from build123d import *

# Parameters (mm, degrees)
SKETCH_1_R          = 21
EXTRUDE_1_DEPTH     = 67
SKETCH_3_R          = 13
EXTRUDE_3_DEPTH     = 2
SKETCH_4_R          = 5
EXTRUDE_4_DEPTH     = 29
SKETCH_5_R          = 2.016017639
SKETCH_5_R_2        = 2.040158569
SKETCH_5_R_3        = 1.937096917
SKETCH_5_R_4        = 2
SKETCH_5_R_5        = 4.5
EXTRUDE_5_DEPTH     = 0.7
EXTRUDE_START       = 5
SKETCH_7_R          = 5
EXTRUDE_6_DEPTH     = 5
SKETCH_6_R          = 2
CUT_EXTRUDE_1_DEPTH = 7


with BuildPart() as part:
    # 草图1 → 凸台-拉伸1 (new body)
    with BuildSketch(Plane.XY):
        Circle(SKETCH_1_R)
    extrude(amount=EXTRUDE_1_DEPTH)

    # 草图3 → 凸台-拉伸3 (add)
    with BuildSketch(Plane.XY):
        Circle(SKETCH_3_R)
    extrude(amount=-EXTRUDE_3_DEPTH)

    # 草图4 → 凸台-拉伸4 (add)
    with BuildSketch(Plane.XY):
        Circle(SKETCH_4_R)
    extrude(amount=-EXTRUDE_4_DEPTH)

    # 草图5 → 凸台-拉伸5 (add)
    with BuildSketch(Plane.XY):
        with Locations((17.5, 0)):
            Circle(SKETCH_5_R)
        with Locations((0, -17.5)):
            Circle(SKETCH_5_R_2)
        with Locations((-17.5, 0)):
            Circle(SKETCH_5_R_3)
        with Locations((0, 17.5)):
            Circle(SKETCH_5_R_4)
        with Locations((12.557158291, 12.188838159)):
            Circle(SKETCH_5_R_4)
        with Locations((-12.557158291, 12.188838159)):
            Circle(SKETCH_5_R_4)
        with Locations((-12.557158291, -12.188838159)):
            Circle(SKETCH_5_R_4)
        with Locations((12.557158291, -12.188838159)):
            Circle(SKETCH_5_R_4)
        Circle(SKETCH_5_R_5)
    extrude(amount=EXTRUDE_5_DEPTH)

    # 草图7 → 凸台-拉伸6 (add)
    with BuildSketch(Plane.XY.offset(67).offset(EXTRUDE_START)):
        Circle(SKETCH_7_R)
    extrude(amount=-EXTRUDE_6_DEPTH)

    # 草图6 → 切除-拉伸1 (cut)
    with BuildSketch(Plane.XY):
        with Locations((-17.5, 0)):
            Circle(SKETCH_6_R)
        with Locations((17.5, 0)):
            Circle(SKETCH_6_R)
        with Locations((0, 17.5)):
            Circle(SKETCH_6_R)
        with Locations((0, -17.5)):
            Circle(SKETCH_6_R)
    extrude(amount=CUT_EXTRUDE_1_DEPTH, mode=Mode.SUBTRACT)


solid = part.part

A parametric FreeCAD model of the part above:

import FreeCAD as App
import Part
import Sketcher
from FreeCAD import Vector

doc = App.newDocument("Part")
params = doc.addObject("Spreadsheet::Sheet", "Params")
for row, (alias, value) in enumerate([
    ("sketch1_diameter", "42 mm"),
    ("pad1_length", "67 mm"),
    ("sketch2_diameter", "26 mm"),
    ("pad2_length", "2 mm"),
    ("sketch3_diameter", "10 mm"),
    ("pad3_length", "29 mm"),
    ("sketch4_diameter", "4 mm"),
    ("sketch4_diameter2", "9 mm"),
    ("pad4_length", "0.7 mm"),
    ("sketch5_diameter", "10 mm"),
    ("pad5_length", "5 mm"),
    ("sketch6_diameter", "4 mm"),
    ("pocket1_length", "7 mm"),
], start=1):
    params.set(f"A{row}", alias)
    params.set(f"B{row}", "=" + value)
    params.setAlias(f"B{row}", alias)

body = doc.addObject("PartDesign::Body", "Body")

sketch1 = body.newObject("Sketcher::SketchObject", "Sketch")
sketch1.AttachmentSupport = (doc.getObject("XY_Plane"), [""])
sketch1.MapMode = "FlatFace"
sketch1.addGeometry(Part.Circle(Vector(0, 0, 0), Vector(0, 0, 1), 21), False)
sketch1.addConstraint([
    Sketcher.Constraint("Coincident", 0, 3, -1, 1),
    Sketcher.Constraint("Diameter", 0, 42.0),
])
sketch1.setExpression("Constraints[1]", "Params.sketch1_diameter")
pad1 = body.newObject("PartDesign::Pad", "Pad")
pad1.Profile = sketch1
pad1.setExpression("Length", "Params.pad1_length")

sketch2 = body.newObject("Sketcher::SketchObject", "Sketch001")
sketch2.AttachmentSupport = (doc.getObject("XY_Plane"), [""])
sketch2.MapMode = "FlatFace"
sketch2.addGeometry(Part.Circle(Vector(0, 0, 0), Vector(0, 0, 1), 13), False)
sketch2.addConstraint([
    Sketcher.Constraint("Coincident", 0, 3, -1, 1),
    Sketcher.Constraint("Diameter", 0, 26.0),
])
sketch2.setExpression("Constraints[1]", "Params.sketch2_diameter")
pad2 = body.newObject("PartDesign::Pad", "Pad001")
pad2.Profile = sketch2
pad2.setExpression("Length", "Params.pad2_length")
pad2.Reversed = True

sketch3 = body.newObject("Sketcher::SketchObject", "Sketch002")
sketch3.AttachmentSupport = (doc.getObject("XY_Plane"), [""])
sketch3.MapMode = "FlatFace"
sketch3.addGeometry(Part.Circle(Vector(0, 0, 0), Vector(0, 0, 1), 5), False)
sketch3.addConstraint([
    Sketcher.Constraint("Coincident", 0, 3, -1, 1),
    Sketcher.Constraint("Diameter", 0, 10.0),
])
sketch3.setExpression("Constraints[1]", "Params.sketch3_diameter")
pad3 = body.newObject("PartDesign::Pad", "Pad002")
pad3.Profile = sketch3
pad3.setExpression("Length", "Params.pad3_length")
pad3.Reversed = True

sketch4 = body.newObject("Sketcher::SketchObject", "Sketch003")
sketch4.AttachmentSupport = (doc.getObject("XY_Plane"), [""])
sketch4.MapMode = "FlatFace"
sketch4.addGeometry([
    Part.Circle(Vector(17.5, 0, 0), Vector(0, 0, 1), 2),
    Part.Circle(Vector(0, -17.5, 0), Vector(0, 0, 1), 2),
    Part.Circle(Vector(-17.5, 0, 0), Vector(0, 0, 1), 1.9),
    Part.Circle(Vector(0, 17.5, 0), Vector(0, 0, 1), 2),
    Part.Circle(Vector(12.6, 12.2, 0), Vector(0, 0, 1), 2),
    Part.Circle(Vector(-12.6, 12.2, 0), Vector(0, 0, 1), 2),
    Part.Circle(Vector(-12.6, -12.2, 0), Vector(0, 0, 1), 2),
    Part.Circle(Vector(12.6, -12.2, 0), Vector(0, 0, 1), 2),
    Part.Circle(Vector(0, 0, 0), Vector(0, 0, 1), 4.5),
], False)
sketch4.addConstraint([
    Sketcher.Constraint("Coincident", 8, 3, -1, 1),
    Sketcher.Constraint("Equal", 3, 4),
    Sketcher.Constraint("Equal", 4, 5),
    Sketcher.Constraint("Equal", 5, 6),
    Sketcher.Constraint("Equal", 6, 7),
    Sketcher.Constraint("Symmetric", 0, 3, 2, 3, -1, 1),
    Sketcher.Constraint("Symmetric", 1, 3, 3, 3, -1, 1),
    Sketcher.Constraint("Symmetric", 4, 3, 6, 3, -1, 1),
    Sketcher.Constraint("Symmetric", 5, 3, 7, 3, -1, 1),
    Sketcher.Constraint("Symmetric", 4, 3, 5, 3, -2),
    Sketcher.Constraint("PointOnObject", 0, 3, -1),
    Sketcher.Constraint("PointOnObject", 1, 3, -2),
    Sketcher.Constraint("Diameter", 3, 4.0),
    Sketcher.Constraint("Diameter", 8, 9.0),
    Sketcher.Constraint("DistanceX", 2, 3, 0, 3, 35.0),
    Sketcher.Constraint("DistanceY", 1, 3, 3, 3, 35.0),
    Sketcher.Constraint("Diameter", 0, 4.032035),
    Sketcher.Constraint("Diameter", 1, 4.080317),
    Sketcher.Constraint("Diameter", 2, 3.874194),
    Sketcher.Constraint("DistanceX", -1, 1, 4, 3, 12.557158),
    Sketcher.Constraint("DistanceY", -1, 1, 4, 3, 12.188838),
])
sketch4.setExpression("Constraints[12]", "Params.sketch4_diameter")
sketch4.setExpression("Constraints[13]", "Params.sketch4_diameter2")
pad4 = body.newObject("PartDesign::Pad", "Pad003")
pad4.Profile = sketch4
pad4.setExpression("Length", "Params.pad4_length")

sketch5 = body.newObject("Sketcher::SketchObject", "Sketch004")
sketch5.AttachmentSupport = (doc.getObject("XY_Plane"), [""])
sketch5.MapMode = "FlatFace"
sketch5.AttachmentOffset = App.Placement(Vector(0, 0, 72), App.Rotation())
sketch5.addGeometry(Part.Circle(Vector(0, 0, 0), Vector(0, 0, 1), 5), False)
sketch5.addConstraint([
    Sketcher.Constraint("Coincident", 0, 3, -1, 1),
    Sketcher.Constraint("Diameter", 0, 10.0),
])
sketch5.setExpression("Constraints[1]", "Params.sketch5_diameter")
pad5 = body.newObject("PartDesign::Pad", "Pad004")
pad5.Profile = sketch5
pad5.setExpression("Length", "Params.pad5_length")
pad5.Reversed = True

sketch6 = body.newObject("Sketcher::SketchObject", "Sketch005")
sketch6.AttachmentSupport = (doc.getObject("XY_Plane"), [""])
sketch6.MapMode = "FlatFace"
sketch6.addGeometry([
    Part.Circle(Vector(-17.5, 0, 0), Vector(0, 0, 1), 2),
    Part.Circle(Vector(17.5, 0, 0), Vector(0, 0, 1), 2),
    Part.Circle(Vector(0, 17.5, 0), Vector(0, 0, 1), 2),
    Part.Circle(Vector(0, -17.5, 0), Vector(0, 0, 1), 2),
], False)
sketch6.addConstraint([
    Sketcher.Constraint("Equal", 0, 1),
    Sketcher.Constraint("Equal", 1, 2),
    Sketcher.Constraint("Equal", 2, 3),
    Sketcher.Constraint("Symmetric", 0, 3, 1, 3, -1, 1),
    Sketcher.Constraint("Symmetric", 2, 3, 3, 3, -1, 1),
    Sketcher.Constraint("PointOnObject", 0, 3, -1),
    Sketcher.Constraint("PointOnObject", 2, 3, -2),
    Sketcher.Constraint("Diameter", 0, 4.0),
    Sketcher.Constraint("DistanceX", 0, 3, 1, 3, 35.0),
    Sketcher.Constraint("DistanceY", 3, 3, 2, 3, 35.0),
])
sketch6.setExpression("Constraints[7]", "Params.sketch6_diameter")
pocket1 = body.newObject("PartDesign::Pocket", "Pocket")
pocket1.Profile = sketch6
pocket1.setExpression("Length", "Params.pocket1_length")
pocket1.Reversed = True

doc.recompute()
